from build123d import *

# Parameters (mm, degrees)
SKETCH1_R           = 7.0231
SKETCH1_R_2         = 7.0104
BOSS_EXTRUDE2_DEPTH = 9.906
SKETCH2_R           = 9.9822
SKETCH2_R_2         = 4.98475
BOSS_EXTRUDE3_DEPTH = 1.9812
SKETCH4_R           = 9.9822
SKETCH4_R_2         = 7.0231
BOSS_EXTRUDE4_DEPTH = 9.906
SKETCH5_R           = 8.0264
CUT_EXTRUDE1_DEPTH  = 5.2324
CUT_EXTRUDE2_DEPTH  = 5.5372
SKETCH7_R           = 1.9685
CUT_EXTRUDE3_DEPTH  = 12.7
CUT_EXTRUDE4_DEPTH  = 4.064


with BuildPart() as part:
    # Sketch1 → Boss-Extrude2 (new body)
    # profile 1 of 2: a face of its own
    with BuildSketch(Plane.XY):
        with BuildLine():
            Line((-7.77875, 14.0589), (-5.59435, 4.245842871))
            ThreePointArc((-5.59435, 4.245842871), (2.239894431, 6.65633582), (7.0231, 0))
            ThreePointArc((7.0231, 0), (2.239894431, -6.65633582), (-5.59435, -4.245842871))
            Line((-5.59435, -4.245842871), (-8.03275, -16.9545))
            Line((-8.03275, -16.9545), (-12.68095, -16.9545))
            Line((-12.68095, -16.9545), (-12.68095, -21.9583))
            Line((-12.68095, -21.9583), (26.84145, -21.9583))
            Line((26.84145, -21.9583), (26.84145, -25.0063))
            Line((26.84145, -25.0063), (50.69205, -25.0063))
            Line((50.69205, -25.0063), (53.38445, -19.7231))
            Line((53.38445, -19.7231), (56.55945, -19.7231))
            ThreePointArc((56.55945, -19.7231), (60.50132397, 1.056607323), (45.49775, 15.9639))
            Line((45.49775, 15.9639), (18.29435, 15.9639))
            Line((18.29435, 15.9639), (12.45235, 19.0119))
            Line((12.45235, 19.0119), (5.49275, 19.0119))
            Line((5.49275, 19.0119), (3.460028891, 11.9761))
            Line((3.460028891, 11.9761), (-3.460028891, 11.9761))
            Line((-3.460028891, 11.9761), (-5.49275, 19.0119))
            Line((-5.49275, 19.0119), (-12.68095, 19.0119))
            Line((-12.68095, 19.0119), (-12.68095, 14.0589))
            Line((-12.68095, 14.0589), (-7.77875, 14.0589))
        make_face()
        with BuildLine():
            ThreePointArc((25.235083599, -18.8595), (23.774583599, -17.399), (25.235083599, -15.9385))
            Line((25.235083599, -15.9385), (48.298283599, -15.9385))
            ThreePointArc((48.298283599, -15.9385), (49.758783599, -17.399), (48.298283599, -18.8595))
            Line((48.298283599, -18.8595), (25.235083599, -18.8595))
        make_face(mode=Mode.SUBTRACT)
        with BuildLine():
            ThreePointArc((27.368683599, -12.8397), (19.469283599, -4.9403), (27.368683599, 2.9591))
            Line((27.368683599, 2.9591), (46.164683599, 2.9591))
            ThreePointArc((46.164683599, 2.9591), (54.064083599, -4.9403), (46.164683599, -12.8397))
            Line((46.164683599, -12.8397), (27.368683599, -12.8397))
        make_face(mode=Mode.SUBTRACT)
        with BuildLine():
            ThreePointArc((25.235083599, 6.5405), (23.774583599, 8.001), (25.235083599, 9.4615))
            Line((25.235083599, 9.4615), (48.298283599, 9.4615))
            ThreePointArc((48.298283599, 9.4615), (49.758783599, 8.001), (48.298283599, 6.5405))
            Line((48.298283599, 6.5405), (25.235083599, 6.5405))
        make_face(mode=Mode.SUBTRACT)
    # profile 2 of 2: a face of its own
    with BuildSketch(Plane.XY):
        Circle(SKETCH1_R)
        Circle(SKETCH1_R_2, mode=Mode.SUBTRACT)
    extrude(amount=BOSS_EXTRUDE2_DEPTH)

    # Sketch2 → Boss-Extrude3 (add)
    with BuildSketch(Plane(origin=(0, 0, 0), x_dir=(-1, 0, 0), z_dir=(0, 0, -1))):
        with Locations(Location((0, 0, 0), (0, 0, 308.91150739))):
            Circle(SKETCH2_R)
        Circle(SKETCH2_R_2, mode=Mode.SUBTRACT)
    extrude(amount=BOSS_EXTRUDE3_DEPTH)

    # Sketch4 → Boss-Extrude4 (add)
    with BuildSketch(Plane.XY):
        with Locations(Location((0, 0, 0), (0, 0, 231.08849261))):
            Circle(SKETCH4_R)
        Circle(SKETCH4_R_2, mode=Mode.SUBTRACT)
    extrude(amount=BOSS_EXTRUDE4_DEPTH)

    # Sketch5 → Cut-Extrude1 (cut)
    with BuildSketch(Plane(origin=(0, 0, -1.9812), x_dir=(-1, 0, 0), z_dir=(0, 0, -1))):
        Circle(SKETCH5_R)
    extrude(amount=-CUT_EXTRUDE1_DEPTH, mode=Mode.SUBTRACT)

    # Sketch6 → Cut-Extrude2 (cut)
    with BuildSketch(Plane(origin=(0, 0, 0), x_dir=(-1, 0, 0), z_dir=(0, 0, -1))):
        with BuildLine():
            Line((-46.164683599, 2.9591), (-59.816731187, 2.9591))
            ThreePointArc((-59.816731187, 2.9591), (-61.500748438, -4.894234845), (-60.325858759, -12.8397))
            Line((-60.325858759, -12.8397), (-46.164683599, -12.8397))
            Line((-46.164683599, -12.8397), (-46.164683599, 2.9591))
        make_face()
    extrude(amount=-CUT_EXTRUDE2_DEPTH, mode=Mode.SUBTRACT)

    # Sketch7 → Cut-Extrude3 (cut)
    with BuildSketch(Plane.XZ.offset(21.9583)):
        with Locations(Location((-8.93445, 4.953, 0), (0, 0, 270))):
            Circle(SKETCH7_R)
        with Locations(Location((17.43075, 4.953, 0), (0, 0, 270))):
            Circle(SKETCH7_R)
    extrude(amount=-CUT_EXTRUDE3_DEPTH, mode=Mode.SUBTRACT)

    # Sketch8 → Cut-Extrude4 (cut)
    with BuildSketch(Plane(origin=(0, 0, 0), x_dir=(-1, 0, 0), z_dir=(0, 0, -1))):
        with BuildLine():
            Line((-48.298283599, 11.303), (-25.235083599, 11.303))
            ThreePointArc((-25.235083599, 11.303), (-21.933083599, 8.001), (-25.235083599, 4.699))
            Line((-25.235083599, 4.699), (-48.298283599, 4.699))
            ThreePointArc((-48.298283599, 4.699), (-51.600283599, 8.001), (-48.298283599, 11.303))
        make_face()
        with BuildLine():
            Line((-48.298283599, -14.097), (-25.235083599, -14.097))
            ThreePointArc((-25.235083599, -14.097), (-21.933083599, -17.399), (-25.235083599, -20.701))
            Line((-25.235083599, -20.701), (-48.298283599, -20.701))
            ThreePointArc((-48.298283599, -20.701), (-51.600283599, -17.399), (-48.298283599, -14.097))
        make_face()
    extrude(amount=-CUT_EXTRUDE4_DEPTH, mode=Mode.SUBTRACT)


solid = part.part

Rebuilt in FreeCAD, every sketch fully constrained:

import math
import FreeCAD as App
import Part
import Sketcher

V = App.Vector
Q = App.Units.Quantity

doc = App.newDocument("Part")
body = doc.addObject("PartDesign::Body", "Body")

# Sketch on XY plane
sketch1 = body.newObject("Sketcher::SketchObject", "Sketch")
sketch1.AttachmentSupport = (doc.getObject("XY_Plane"), [""])
sketch1.MapMode = "FlatFace"
sketch1.addGeometry([
    Part.LineSegment(V(-7.77875, 14.0589, 0), V(-5.59435, 4.245843, 0)),  # 0
    Part.ArcOfCircle(Part.Circle(V(0, 0, 0), V(0, 0, 1), 7.0231), math.radians(142.803248), math.radians(217.196752)),  # 1
    Part.LineSegment(V(-5.59435, -4.245843, 0), V(-8.03275, -16.9545, 0)),  # 2
    Part.LineSegment(V(-8.03275, -16.9545, 0), V(-12.68095, -16.9545, 0)),  # 3
    Part.LineSegment(V(-12.68095, -16.9545, 0), V(-12.68095, -21.9583, 0)),  # 4
    Part.LineSegment(V(-12.68095, -21.9583, 0), V(26.84145, -21.9583, 0)),  # 5
    Part.LineSegment(V(26.84145, -21.9583, 0), V(26.84145, -25.0063, 0)),  # 6
    Part.LineSegment(V(26.84145, -25.0063, 0), V(50.69205, -25.0063, 0)),  # 7
    Part.LineSegment(V(50.69205, -25.0063, 0), V(53.38445, -19.7231, 0)),  # 8
    Part.LineSegment(V(53.38445, -19.7231, 0), V(56.55945, -19.7231, 0)),  # 9
    Part.ArcOfCircle(Part.Circle(V(38.959316, -5.620649, 0), V(0, 0, 1), 22.553134), math.radians(-38.704134), math.radians(73.147286)),  # 10
    Part.LineSegment(V(45.49775, 15.9639, 0), V(18.29435, 15.9639, 0)),  # 11
    Part.LineSegment(V(18.29435, 15.9639, 0), V(12.45235, 19.0119, 0)),  # 12
    Part.LineSegment(V(12.45235, 19.0119, 0), V(5.49275, 19.0119, 0)),  # 13
    Part.LineSegment(V(5.49275, 19.0119, 0), V(3.460029, 11.9761, 0)),  # 14
    Part.LineSegment(V(3.460029, 11.9761, 0), V(-3.460029, 11.9761, 0)),  # 15
    Part.LineSegment(V(-3.460029, 11.9761, 0), V(-5.49275, 19.0119, 0)),  # 16
    Part.LineSegment(V(-5.49275, 19.0119, 0), V(-12.68095, 19.0119, 0)),  # 17
    Part.LineSegment(V(-12.68095, 19.0119, 0), V(-12.68095, 14.0589, 0)),  # 18
    Part.LineSegment(V(-12.68095, 14.0589, 0), V(-7.77875, 14.0589, 0)),  # 19
    Part.LineSegment(V(48.298284, -18.8595, 0), V(25.235084, -18.8595, 0)),  # 20
    Part.ArcOfCircle(Part.Circle(V(25.235084, -17.399, 0), V(0, 0, 1), 1.4605), math.radians(90), math.radians(270)),  # 21
    Part.LineSegment(V(25.235084, -15.9385, 0), V(48.298284, -15.9385, 0)),  # 22
    Part.ArcOfCircle(Part.Circle(V(48.298284, -17.399, 0), V(0, 0, 1), 1.4605), math.radians(-90), math.radians(90)),  # 23
    Part.LineSegment(V(46.164684, -12.8397, 0), V(27.368684, -12.8397, 0)),  # 24
    Part.ArcOfCircle(Part.Circle(V(27.368684, -4.9403, 0), V(0, 0, 1), 7.8994), math.radians(90), math.radians(270)),  # 25
    Part.LineSegment(V(27.368684, 2.9591, 0), V(46.164684, 2.9591, 0)),  # 26
    Part.ArcOfCircle(Part.Circle(V(46.164684, -4.9403, 0), V(0, 0, 1), 7.8994), math.radians(-90), math.radians(90)),  # 27
    Part.LineSegment(V(48.298284, 6.5405, 0), V(25.235084, 6.5405, 0)),  # 28
    Part.ArcOfCircle(Part.Circle(V(25.235084, 8.001, 0), V(0, 0, 1), 1.4605), math.radians(90), math.radians(270)),  # 29
    Part.LineSegment(V(25.235084, 9.4615, 0), V(48.298284, 9.4615, 0)),  # 30
    Part.ArcOfCircle(Part.Circle(V(48.298284, 8.001, 0), V(0, 0, 1), 1.4605), math.radians(-90), math.radians(90)),  # 31
    Part.Circle(V(0, 0, 0), V(0, 0, 1), 7.0104),  # 32
], False)
sketch1.addConstraint([
    Sketcher.Constraint("Coincident", 0, 2, 1, 1),
    Sketcher.Constraint("Coincident", 1, 2, 2, 1),
    Sketcher.Constraint("Coincident", 2, 2, 3, 1),
    Sketcher.Constraint("Coincident", 3, 2, 4, 1),
    Sketcher.Constraint("Coincident", 4, 2, 5, 1),
    Sketcher.Constraint("Coincident", 5, 2, 6, 1),
    Sketcher.Constraint("Coincident", 6, 2, 7, 1),
    Sketcher.Constraint("Coincident", 7, 2, 8, 1),
    Sketcher.Constraint("Coincident", 8, 2, 9, 1),
    Sketcher.Constraint("Coincident", 9, 2, 10, 1),
    Sketcher.Constraint("Coincident", 10, 2, 11, 1),
    Sketcher.Constraint("Coincident", 11, 2, 12, 1),
    Sketcher.Constraint("Coincident", 12, 2, 13, 1),
    Sketcher.Constraint("Coincident", 13, 2, 14, 1),
    Sketcher.Constraint("Coincident", 14, 2, 15, 1),
    Sketcher.Constraint("Coincident", 15, 2, 16, 1),
    Sketcher.Constraint("Coincident", 16, 2, 17, 1),
    Sketcher.Constraint("Coincident", 17, 2, 18, 1),
    Sketcher.Constraint("Coincident", 18, 2, 19, 1),
    Sketcher.Constraint("Coincident", 19, 2, 0, 1),
    Sketcher.Constraint("Tangent", 20, 2, 21, 2),
    Sketcher.Constraint("Tangent", 21, 1, 22, 1),
    Sketcher.Constraint("Tangent", 22, 2, 23, 2),
    Sketcher.Constraint("Tangent", 23, 1, 20, 1),
    Sketcher.Constraint("Tangent", 24, 2, 25, 2),
    Sketcher.Constraint("Tangent", 25, 1, 26, 1),
    Sketcher.Constraint("Tangent", 26, 2, 27, 2),
    Sketcher.Constraint("Tangent", 27, 1, 24, 1),
    Sketcher.Constraint("Tangent", 28, 2, 29, 2),
    Sketcher.Constraint("Tangent", 29, 1, 30, 1),
    Sketcher.Constraint("Tangent", 30, 2, 31, 2),
    Sketcher.Constraint("Tangent", 31, 1, 28, 1),
    Sketcher.Constraint("Horizontal", 3),
    Sketcher.Constraint("Vertical", 4),
    Sketcher.Constraint("Horizontal", 5),
    Sketcher.Constraint("Vertical", 6),
    Sketcher.Constraint("Horizontal", 7),
    Sketcher.Constraint("Horizontal", 9),
    Sketcher.Constraint("Horizontal", 11),
    Sketcher.Constraint("Horizontal", 13),
    Sketcher.Constraint("Horizontal", 15),
    Sketcher.Constraint("Horizontal", 17),
    Sketcher.Constraint("Vertical", 18),
    Sketcher.Constraint("Horizontal", 19),
    Sketcher.Constraint("Horizontal", 20),
    Sketcher.Constraint("Horizontal", 22),
    Sketcher.Constraint("Horizontal", 24),
    Sketcher.Constraint("Horizontal", 26),
    Sketcher.Constraint("Horizontal", 28),
    Sketcher.Constraint("Horizontal", 30),
    Sketcher.Constraint("Coincident", 1, 3, -1, 1),
    Sketcher.Constraint("Coincident", 32, 3, -1, 1),
    Sketcher.Constraint("Equal", 23, 29),
    Sketcher.Constraint("Symmetric", 13, 2, 16, 2, -2),
    Sketcher.Constraint("Vertical", 21, 3, 29, 3),
    Sketcher.Constraint("Vertical", 23, 3, 31, 3),
    Sketcher.Constraint("Vertical", 0, 2, 1, 2),
    Sketcher.Constraint("Vertical", 4, 2, 17, 2),
    Sketcher.Constraint("Equal", 14, 16),
    Sketcher.Constraint("Diameter", 32, Q("0.552 in")),
    Sketcher.Constraint("Radius", 25, Q("0.311 in")),
    Sketcher.Constraint("DistanceY", 21, 3, 29, 3, Q("1 in")),
    Sketcher.Constraint("DistanceX", 24, 2, 24, 1, Q("0.74 in")),
    Sketcher.Constraint("DistanceY", 6, 2, 6, 1, Q("0.12 in")),
    Sketcher.Constraint("Radius", 1, Q("0.2765 in")),
    Sketcher.Constraint("Radius", 21, Q("0.0575 in")),
    Sketcher.Constraint("DistanceX", 3, 2, 3, 1, Q("0.183 in")),
    Sketcher.Constraint("DistanceX", 5, 1, 5, 2, Q("1.556 in")),
    Sketcher.Constraint("DistanceX", 7, 1, 7, 2, Q("0.939 in")),
    Sketcher.Constraint("DistanceX", 9, 1, 9, 2, Q("0.125 in")),
    Sketcher.Constraint("DistanceX", 11, 2, 11, 1, Q("1.071 in")),
    Sketcher.Constraint("DistanceX", 13, 2, 13, 1, Q("0.274 in")),
    Sketcher.Constraint("DistanceX", 17, 2, 17, 1, Q("0.283 in")),
    Sketcher.Constraint("DistanceX", 19, 1, 19, 2, Q("0.193 in")),
    Sketcher.Constraint("DistanceX", 20, 2, 20, 1, Q("0.908 in")),
    Sketcher.Constraint("DistanceY", 4, 2, 4, 1, Q("0.197 in")),
    Sketcher.Constraint("DistanceY", 18, 2, 18, 1, Q("0.195 in")),
    Sketcher.Constraint("DistanceY", 5, 2, 25, 3, Q("0.67 in")),
    Sketcher.Constraint("DistanceX", 12, 2, 11, 2, Q("0.23 in")),
    Sketcher.Constraint("DistanceY", 11, 2, 12, 2, Q("0.12 in")),
    Sketcher.Constraint("DistanceY", 21, 3, -1, 1, Q("0.685 in")),
    Sketcher.Constraint("DistanceX", 21, 3, 25, 3, Q("0.084 in")),
    Sketcher.Constraint("DistanceX", 2, 2, 1, 2, Q("0.096 in")),
    Sketcher.Constraint("DistanceX", 7, 2, 8, 2, Q("0.106 in")),
    Sketcher.Constraint("DistanceY", 7, 2, 8, 2, Q("0.208 in")),
    Sketcher.Constraint("DistanceY", 27, 3, 10, 2, Q("0.823 in")),
    Sketcher.Constraint("DistanceY", 14, 2, 13, 2, Q("0.277 in")),
    Sketcher.Constraint("DistanceY", 5, 2, 20, 2, Q("0.122 in")),
    Sketcher.Constraint("Radius", 10, Q("22.553134 mm")),
    Sketcher.Constraint("DistanceX", 0, 2, 11, 2, Q("0.9405 in")),
    Sketcher.Constraint("DistanceX", 15, 2, 15, 1, Q("6.920058 mm")),
    Sketcher.Constraint("DistanceX", -1, 1, 21, 3, Q("25.235084 mm")),
])
pad1 = body.newObject("PartDesign::Pad", "Pad")
pad1.Profile = sketch1
pad1.Length = Q("0.39 in")

# Sketch on XY plane
sketch2 = body.newObject("Sketcher::SketchObject", "Sketch001")
sketch2.AttachmentSupport = (doc.getObject("XY_Plane"), [""])
sketch2.MapMode = "FlatFace"
sketch2.addGeometry([
    Part.Circle(V(0, 0, 0), V(0, 0, 1), 9.9822),
    Part.Circle(V(0, 0, 0), V(0, 0, 1), 4.98475),
], False)
sketch2.addConstraint([
    Sketcher.Constraint("Coincident", 0, 3, -1, 1),
    Sketcher.Constraint("Coincident", 1, 3, -1, 1),
    Sketcher.Constraint("Diameter", 0, Q("0.786 in")),
    Sketcher.Constraint("Diameter", 1, Q("0.3925 in")),
])
pad2 = body.newObject("PartDesign::Pad", "Pad001")
pad2.Profile = sketch2
pad2.Length = Q("0.078 in")
pad2.Reversed = True

# Sketch on XY plane
sketch3 = body.newObject("Sketcher::SketchObject", "Sketch002")
sketch3.AttachmentSupport = (doc.getObject("XY_Plane"), [""])
sketch3.MapMode = "FlatFace"
sketch3.addGeometry([
    Part.Circle(V(0, 0, 0), V(0, 0, 1), 9.9822),
    Part.Circle(V(0, 0, 0), V(0, 0, 1), 7.0231),
], False)
sketch3.addConstraint([
    Sketcher.Constraint("Coincident", 0, 3, -1, 1),
    Sketcher.Constraint("Coincident", 1, 3, -1, 1),
    Sketcher.Constraint("Diameter", 0, Q("0.786 in")),
    Sketcher.Constraint("Diameter", 1, Q("0.553 in")),
])
pad3 = body.newObject("PartDesign::Pad", "Pad002")
pad3.Profile = sketch3
pad3.Length = Q("0.39 in")

# Sketch on XY plane
sketch4 = body.newObject("Sketcher::SketchObject", "Sketch003")
sketch4.AttachmentSupport = (doc.getObject("XY_Plane"), [""])
sketch4.MapMode = "FlatFace"
sketch4.AttachmentOffset = App.Placement(V(0, 0, -0.078 * 25.4), App.Rotation())
sketch4.addGeometry(Part.Circle(V(0, 0, 0), V(0, 0, 1), 8.0264), False)
sketch4.addConstraint([
    Sketcher.Constraint("Coincident", 0, 3, -1, 1),
    Sketcher.Constraint("Diameter", 0, Q("0.632 in")),
])
pocket1 = body.newObject("PartDesign::Pocket", "Pocket")
pocket1.Profile = sketch4
pocket1.Length = Q("0.206 in")
pocket1.Reversed = True

# Sketch on XY plane
sketch5 = body.newObject("Sketcher::SketchObject", "Sketch004")
sketch5.AttachmentSupport = (doc.getObject("XY_Plane"), [""])
sketch5.MapMode = "FlatFace"
sketch5.addGeometry([
    Part.LineSegment(V(46.164684, 2.9591, 0), V(59.816731, 2.9591, 0)),
    Part.ArcOfCircle(Part.Circle(V(38.959316, -5.620649, 0), V(0, 0, 1), 22.553134), math.radians(-18.668418), math.radians(22.359935)),
    Part.LineSegment(V(60.325859, -12.8397, 0), V(46.164684, -12.8397, 0)),
    Part.LineSegment(V(46.164684, -12.8397, 0), V(46.164684, 2.9591, 0)),
], False)
sketch5.addConstraint([
    Sketcher.Constraint("Coincident", 0, 2, 1, 2),
    Sketcher.Constraint("Coincident", 1, 1, 2, 1),
    Sketcher.Constraint("Coincident", 2, 2, 3, 1),
    Sketcher.Constraint("Coincident", 3, 2, 0, 1),
    Sketcher.Constraint("Horizontal", 0),
    Sketcher.Constraint("Horizontal", 2),
    Sketcher.Constraint("Vertical", 3),
    Sketcher.Constraint("DistanceY", 3, 1, 3, 2, Q("0.622 in")),
    Sketcher.Constraint("DistanceY", -1, 1, 0, 2, Q("0.1165 in")),
    Sketcher.Constraint("Radius", 1, Q("22.553134 mm")),
    Sketcher.Constraint("DistanceX", 0, 1, 0, 2, Q("13.652048 mm")),
    Sketcher.Constraint("DistanceX", 2, 2, 2, 1, Q("14.161175 mm")),
    Sketcher.Constraint("DistanceX", -1, 1, 0, 2, Q("59.816731 mm")),
])
pocket2 = body.newObject("PartDesign::Pocket", "Pocket001")
pocket2.Profile = sketch5
pocket2.Length = Q("0.218 in")
pocket2.Reversed = True

# Sketch on XZ plane
sketch6 = body.newObject("Sketcher::SketchObject", "Sketch005")
sketch6.AttachmentSupport = (doc.getObject("XZ_Plane"), [""])
sketch6.MapMode = "FlatFace"
sketch6.AttachmentOffset = App.Placement(V(0, 0, 0.8645 * 25.4), App.Rotation())
sketch6.addGeometry([
    Part.Circle(V(-8.93445, 4.953, 0), V(0, 0, 1), 1.9685),
    Part.Circle(V(17.43075, 4.953, 0), V(0, 0, 1), 1.9685),
], False)
sketch6.addConstraint([
    Sketcher.Constraint("Equal", 0, 1),
    Sketcher.Constraint("Horizontal", 0, 3, 1, 3),
    Sketcher.Constraint("Diameter", 0, Q("0.155 in")),
    Sketcher.Constraint("DistanceY", -1, 1, 0, 3, Q("0.195 in")),
    Sketcher.Constraint("DistanceX", 0, 3, 1, 3, Q("1.038 in")),
    Sketcher.Constraint("DistanceX", 0, 3, -1, 1, Q("8.93445 mm")),
])
pocket3 = body.newObject("PartDesign::Pocket", "Pocket002")
pocket3.Profile = sketch6
pocket3.Length = Q("0.5 in")

# Sketch on XY plane
sketch7 = body.newObject("Sketcher::SketchObject", "Sketch006")
sketch7.AttachmentSupport = (doc.getObject("XY_Plane"), [""])
sketch7.MapMode = "FlatFace"
sketch7.addGeometry([
    Part.LineSegment(V(25.235084, 11.303, 0), V(48.298284, 11.303, 0)),  # 0
    Part.ArcOfCircle(Part.Circle(V(48.298284, 8.001, 0), V(0, 0, 1), 3.302), math.radians(-90), math.radians(90)),  # 1
    Part.LineSegment(V(48.298284, 4.699, 0), V(25.235084, 4.699, 0)),  # 2
    Part.ArcOfCircle(Part.Circle(V(25.235084, 8.001, 0), V(0, 0, 1), 3.302), math.radians(90), math.radians(270)),  # 3
    Part.LineSegment(V(25.235084, -14.097, 0), V(48.298284, -14.097, 0)),  # 4
    Part.ArcOfCircle(Part.Circle(V(48.298284, -17.399, 0), V(0, 0, 1), 3.302), math.radians(-90), math.radians(90)),  # 5
    Part.LineSegment(V(48.298284, -20.701, 0), V(25.235084, -20.701, 0)),  # 6
    Part.ArcOfCircle(Part.Circle(V(25.235084, -17.399, 0), V(0, 0, 1), 3.302), math.radians(90), math.radians(270)),  # 7
], False)
sketch7.addConstraint([
    Sketcher.Constraint("Tangent", 0, 2, 1, 2),
    Sketcher.Constraint("Tangent", 1, 1, 2, 1),
    Sketcher.Constraint("Tangent", 2, 2, 3, 2),
    Sketcher.Constraint("Tangent", 3, 1, 0, 1),
    Sketcher.Constraint("Tangent", 4, 2, 5, 2),
    Sketcher.Constraint("Tangent", 5, 1, 6, 1),
    Sketcher.Constraint("Tangent", 6, 2, 7, 2),
    Sketcher.Constraint("Tangent", 7, 1, 4, 1),
    Sketcher.Constraint("Horizontal", 0),
    Sketcher.Constraint("Horizontal", 2),
    Sketcher.Constraint("Horizontal", 4),
    Sketcher.Constraint("Horizontal", 6),
    Sketcher.Constraint("Equal", 3, 5),
    Sketcher.Constraint("Vertical", 1, 3, 5, 3),
    Sketcher.Constraint("Vertical", 3, 3, 7, 3),
    Sketcher.Constraint("Radius", 1, Q("0.13 in")),
    Sketcher.Constraint("DistanceY", 5, 3, 1, 3, Q("1 in")),
    Sketcher.Constraint("DistanceX", 0, 1, 0, 2, Q("0.908 in")),
    Sketcher.Constraint("DistanceY", -1, 1, 1, 3, Q("0.315 in")),
    Sketcher.Constraint("DistanceX", -1, 1, 1, 3, Q("48.298284 mm")),
])
pocket4 = body.newObject("PartDesign::Pocket", "Pocket003")
pocket4.Profile = sketch7
pocket4.Length = Q("0.16 in")
pocket4.Reversed = True

doc.recompute()
